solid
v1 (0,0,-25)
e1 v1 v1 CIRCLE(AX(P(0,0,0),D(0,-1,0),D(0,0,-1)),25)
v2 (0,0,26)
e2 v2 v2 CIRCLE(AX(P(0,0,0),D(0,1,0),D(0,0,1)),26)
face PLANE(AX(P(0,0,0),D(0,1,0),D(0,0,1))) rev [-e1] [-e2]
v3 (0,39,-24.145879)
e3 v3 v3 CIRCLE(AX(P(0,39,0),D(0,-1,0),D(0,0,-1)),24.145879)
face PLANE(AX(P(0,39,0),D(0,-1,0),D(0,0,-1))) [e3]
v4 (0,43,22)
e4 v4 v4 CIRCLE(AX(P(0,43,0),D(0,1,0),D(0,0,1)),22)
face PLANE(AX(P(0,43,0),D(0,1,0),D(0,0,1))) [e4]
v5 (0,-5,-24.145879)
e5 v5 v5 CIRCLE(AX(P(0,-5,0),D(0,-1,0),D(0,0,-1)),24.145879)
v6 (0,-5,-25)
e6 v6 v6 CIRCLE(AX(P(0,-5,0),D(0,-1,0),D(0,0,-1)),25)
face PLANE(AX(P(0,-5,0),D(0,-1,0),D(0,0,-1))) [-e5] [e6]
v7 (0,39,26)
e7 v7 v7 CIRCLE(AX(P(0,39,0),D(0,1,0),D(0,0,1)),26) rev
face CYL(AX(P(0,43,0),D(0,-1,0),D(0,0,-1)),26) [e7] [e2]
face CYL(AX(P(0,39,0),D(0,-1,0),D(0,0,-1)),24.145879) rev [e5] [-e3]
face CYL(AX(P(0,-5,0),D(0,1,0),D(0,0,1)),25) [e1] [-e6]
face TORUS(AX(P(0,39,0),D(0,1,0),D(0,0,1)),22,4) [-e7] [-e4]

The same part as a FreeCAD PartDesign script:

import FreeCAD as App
import Part
import Sketcher
Q = App.Units.Quantity


def edges_at(feature, points):
    """Names of the edges that pass closest to the given points."""
    edges = feature.Shape.Edges
    near = lambda p: min(range(len(edges)), key=lambda i: edges[i].distToShape(Part.Vertex(*p))[0])
    return sorted({f"Edge{near(p) + 1}" for p in points})

doc = App.newDocument("Part")
body = doc.addObject("PartDesign::Body", "Body")

# Sketch on XZ plane
sketch1 = doc.addObject("Sketcher::SketchObject", "Sketch")
body.addObject(sketch1)
sketch1.AttachmentSupport = (doc.XZ_Plane, [""])
sketch1.MapMode = "FlatFace"
sketch1.addGeometry(Part.Circle(App.Vector(0, 0, 0), App.Vector(0, 0, 1), 26), False)
sketch1.addConstraint([
    Sketcher.Constraint("Coincident", 0, 3, -1, 1),
    Sketcher.Constraint("Diameter", 0, Q("52 mm")),
])
pad1 = doc.addObject("PartDesign::Pad", "Pad")
body.addObject(pad1)
pad1.Profile = sketch1
pad1.Length = 43
pad1.Reversed = True

# Sketch on XZ plane
sketch2 = doc.addObject("Sketcher::SketchObject", "Sketch001")
body.addObject(sketch2)
sketch2.AttachmentSupport = (doc.XZ_Plane, [""])
sketch2.MapMode = "FlatFace"
sketch2.addGeometry(Part.Circle(App.Vector(0, 0, 0), App.Vector(0, 0, 1), 25), False)
sketch2.addConstraint([
    Sketcher.Constraint("Coincident", 0, 3, -1, 1),
    Sketcher.Constraint("Diameter", 0, Q("50 mm")),
])
pad2 = doc.addObject("PartDesign::Pad", "Pad001")
body.addObject(pad2)
pad2.Profile = sketch2
pad2.Length = 5

# Sketch on XZ plane
sketch3 = doc.addObject("Sketcher::SketchObject", "Sketch002")
body.addObject(sketch3)
sketch3.AttachmentSupport = (doc.XZ_Plane, [""])
sketch3.MapMode = "FlatFace"
sketch3.AttachmentOffset = App.Placement(App.Vector(0, 0, 5), App.Rotation())
sketch3.addGeometry(Part.Circle(App.Vector(0, 0, 0), App.Vector(0, 0, 1), 24), False)
sketch3.addConstraint([
    Sketcher.Constraint("Coincident", 0, 3, -1, 1),
    Sketcher.Constraint("Diameter", 0, Q("48.291757 mm")),
])
pocket1 = doc.addObject("PartDesign::Pocket", "Pocket")
body.addObject(pocket1)
pocket1.Profile = sketch3
pocket1.Length = 44
doc.recompute()

fillet = doc.addObject("PartDesign::Fillet", "Fillet")
body.addObject(fillet)
fillet.Base = (pocket1, edges_at(pocket1, [(0, 43, -26)]))
fillet.Radius = 4

doc.recompute()
